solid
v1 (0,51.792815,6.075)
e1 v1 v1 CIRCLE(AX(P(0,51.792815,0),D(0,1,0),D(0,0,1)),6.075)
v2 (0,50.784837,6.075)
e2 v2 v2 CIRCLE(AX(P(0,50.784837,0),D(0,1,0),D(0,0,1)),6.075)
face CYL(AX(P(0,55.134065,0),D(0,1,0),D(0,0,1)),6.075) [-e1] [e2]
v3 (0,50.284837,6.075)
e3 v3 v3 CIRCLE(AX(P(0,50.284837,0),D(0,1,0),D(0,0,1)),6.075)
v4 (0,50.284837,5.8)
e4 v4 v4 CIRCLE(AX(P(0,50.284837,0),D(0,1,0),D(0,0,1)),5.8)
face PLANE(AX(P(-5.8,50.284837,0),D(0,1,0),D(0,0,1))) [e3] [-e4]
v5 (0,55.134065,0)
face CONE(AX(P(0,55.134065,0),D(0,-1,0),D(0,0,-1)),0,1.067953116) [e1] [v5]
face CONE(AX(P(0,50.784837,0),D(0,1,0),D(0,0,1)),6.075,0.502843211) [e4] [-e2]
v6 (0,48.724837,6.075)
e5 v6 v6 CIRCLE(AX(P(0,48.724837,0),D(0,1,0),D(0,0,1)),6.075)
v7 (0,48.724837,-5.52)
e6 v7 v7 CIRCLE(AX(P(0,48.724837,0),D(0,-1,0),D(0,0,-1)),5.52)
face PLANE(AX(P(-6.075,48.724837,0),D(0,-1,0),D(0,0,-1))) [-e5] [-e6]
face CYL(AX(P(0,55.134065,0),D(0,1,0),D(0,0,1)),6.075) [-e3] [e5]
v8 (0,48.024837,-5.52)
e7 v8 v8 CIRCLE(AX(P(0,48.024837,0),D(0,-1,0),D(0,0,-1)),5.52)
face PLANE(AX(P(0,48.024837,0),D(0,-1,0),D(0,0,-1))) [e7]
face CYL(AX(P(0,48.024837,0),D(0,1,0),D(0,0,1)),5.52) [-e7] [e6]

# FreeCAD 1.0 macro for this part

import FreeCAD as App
import Part
import Sketcher
from FreeCAD import Vector

doc = App.newDocument("Part")
params = doc.addObject("Spreadsheet::Sheet", "Params")
for row, (alias, value) in enumerate([
    ("sketch1_height", "1.56 mm"),
    ("revolution_angle", "360 deg"),
    ("sketch2_diameter", "11.04 mm"),
    ("pad1_length", "0.7 mm"),
], start=1):
    params.set(f"A{row}", alias)
    params.set(f"B{row}", "=" + value)
    params.setAlias(f"B{row}", alias)

body = doc.addObject("PartDesign::Body", "Body")

# Sketch on XY plane
sketch1 = doc.addObject("Sketcher::SketchObject", "Sketch")
body.addObject(sketch1)
sketch1.AttachmentSupport = (doc.XY_Plane, [""])
sketch1.MapMode = "FlatFace"
sketch1.addGeometry(Part.LineSegment(Vector(0, 48.72, 0), Vector(0, 55.13, 0)), False)
sketch1.addGeometry(Part.LineSegment(Vector(0, 55.13, 0), Vector(-6.08, 51.79, 0)), False)
sketch1.addGeometry(Part.LineSegment(Vector(-6.08, 51.79, 0), Vector(-6.08, 50.78, 0)), False)
sketch1.addGeometry(Part.LineSegment(Vector(-6.08, 50.78, 0), Vector(-5.8, 50.28, 0)), False)
sketch1.addGeometry(Part.LineSegment(Vector(-5.8, 50.28, 0), Vector(-6.08, 50.28, 0)), False)
sketch1.addGeometry(Part.LineSegment(Vector(-6.08, 50.28, 0), Vector(-6.08, 48.72, 0)), False)
sketch1.addGeometry(Part.LineSegment(Vector(-6.08, 48.72, 0), Vector(0, 48.72, 0)), False)
sketch1.addConstraint(Sketcher.Constraint("Coincident", 0, 2, 1, 1))
sketch1.addConstraint(Sketcher.Constraint("Coincident", 1, 2, 2, 1))
sketch1.addConstraint(Sketcher.Constraint("Coincident", 2, 2, 3, 1))
sketch1.addConstraint(Sketcher.Constraint("Coincident", 3, 2, 4, 1))
sketch1.addConstraint(Sketcher.Constraint("Coincident", 4, 2, 5, 1))
sketch1.addConstraint(Sketcher.Constraint("Coincident", 5, 2, 6, 1))
sketch1.addConstraint(Sketcher.Constraint("Coincident", 6, 2, 0, 1))
sketch1.addConstraint(Sketcher.Constraint("Vertical", 0))
sketch1.addConstraint(Sketcher.Constraint("Vertical", 2))
sketch1.addConstraint(Sketcher.Constraint("Horizontal", 4))
sketch1.addConstraint(Sketcher.Constraint("Vertical", 5))
sketch1.addConstraint(Sketcher.Constraint("Horizontal", 6))
sketch1.addConstraint(Sketcher.Constraint("PointOnObject", 0, 2, -2))
sketch1.addConstraint(Sketcher.Constraint("Perpendicular", 1, 3))
sketch1.addConstraint(Sketcher.Constraint("Vertical", 2, 2, 4, 2))
sketch1.addConstraint(Sketcher.Constraint("DistanceY", 5, 2, 5, 1, 1.56))
sketch1.addConstraint(Sketcher.Constraint("DistanceX", 3, 2, -1, 1, 5.8))
sketch1.addConstraint(Sketcher.Constraint("DistanceY", 3, 2, 2, 2, 0.5))
sketch1.addConstraint(Sketcher.Constraint("DistanceX", 4, 2, 4, 1, 0.275))
sketch1.addConstraint(Sketcher.Constraint("DistanceY", 0, 1, 0, 2, 6.409229))
sketch1.addConstraint(Sketcher.Constraint("DistanceY", -1, 1, 0, 2, 55.134065))
sketch1.setExpression("Constraints[15]", "Params.sketch1_height")
revolution = doc.addObject("PartDesign::Revolution", "Revolution")
body.addObject(revolution)
revolution.Profile = sketch1
revolution.ReferenceAxis = (sketch1, ["V_Axis"])
revolution.setExpression("Angle", "Params.revolution_angle")

# Sketch on XZ plane
sketch2 = doc.addObject("Sketcher::SketchObject", "Sketch001")
body.addObject(sketch2)
sketch2.AttachmentSupport = (doc.XZ_Plane, [""])
sketch2.MapMode = "FlatFace"
sketch2.AttachmentOffset = App.Placement(Vector(0, 0, -48.724837), App.Rotation())
sketch2.addGeometry(Part.Circle(Vector(0, 0, 0), Vector(0, 0, 1), 6), False)
sketch2.addConstraint(Sketcher.Constraint("Coincident", 0, 3, -1, 1))
sketch2.addConstraint(Sketcher.Constraint("Diameter", 0, 11.04))
sketch2.setExpression("Constraints[1]", "Params.sketch2_diameter")
pad1 = doc.addObject("PartDesign::Pad", "Pad")
body.addObject(pad1)
pad1.Profile = sketch2
pad1.setExpression("Length", "Params.pad1_length")

doc.recompute()
